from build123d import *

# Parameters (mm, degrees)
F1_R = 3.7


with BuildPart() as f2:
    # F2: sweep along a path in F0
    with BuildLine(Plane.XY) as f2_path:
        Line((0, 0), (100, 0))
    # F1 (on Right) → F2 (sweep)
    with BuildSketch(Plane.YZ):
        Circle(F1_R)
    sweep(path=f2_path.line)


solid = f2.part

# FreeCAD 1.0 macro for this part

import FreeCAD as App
import Part
import Sketcher

V = App.Vector

doc = App.newDocument("Part")
body = doc.addObject("PartDesign::Body", "Body")

sketch1 = body.newObject("Sketcher::SketchObject", "Sketch")
sketch1.AttachmentSupport = (doc.getObject("YZ_Plane"), [""])
sketch1.MapMode = "FlatFace"
sketch1.addGeometry(Part.Circle(V(0, 0, 0), V(0, 0, 1), 3.7), False)
sketch1.addConstraint([
    Sketcher.Constraint("Coincident", 0, 3, -1, 1),
    Sketcher.Constraint("Diameter", 0, 7.4),
])

sketch2 = body.newObject("Sketcher::SketchObject", "Sketch001")
sketch2.AttachmentSupport = (doc.getObject("XY_Plane"), [""])
sketch2.MapMode = "FlatFace"
sketch2.addGeometry(Part.LineSegment(V(0, 0, 0), V(100, 0, 0)), False)
sketch2.addConstraint([
    Sketcher.Constraint("Horizontal", 0),
    Sketcher.Constraint("Coincident", 0, 1, -1, 1),
    Sketcher.Constraint("DistanceX", 0, 1, 0, 2, 100.0),
])
doc.recompute()

additivepipe = body.newObject("PartDesign::AdditivePipe", "AdditivePipe")
additivepipe.Profile = sketch1
additivepipe.Spine = (sketch2, ["Edge1"])

doc.recompute()
